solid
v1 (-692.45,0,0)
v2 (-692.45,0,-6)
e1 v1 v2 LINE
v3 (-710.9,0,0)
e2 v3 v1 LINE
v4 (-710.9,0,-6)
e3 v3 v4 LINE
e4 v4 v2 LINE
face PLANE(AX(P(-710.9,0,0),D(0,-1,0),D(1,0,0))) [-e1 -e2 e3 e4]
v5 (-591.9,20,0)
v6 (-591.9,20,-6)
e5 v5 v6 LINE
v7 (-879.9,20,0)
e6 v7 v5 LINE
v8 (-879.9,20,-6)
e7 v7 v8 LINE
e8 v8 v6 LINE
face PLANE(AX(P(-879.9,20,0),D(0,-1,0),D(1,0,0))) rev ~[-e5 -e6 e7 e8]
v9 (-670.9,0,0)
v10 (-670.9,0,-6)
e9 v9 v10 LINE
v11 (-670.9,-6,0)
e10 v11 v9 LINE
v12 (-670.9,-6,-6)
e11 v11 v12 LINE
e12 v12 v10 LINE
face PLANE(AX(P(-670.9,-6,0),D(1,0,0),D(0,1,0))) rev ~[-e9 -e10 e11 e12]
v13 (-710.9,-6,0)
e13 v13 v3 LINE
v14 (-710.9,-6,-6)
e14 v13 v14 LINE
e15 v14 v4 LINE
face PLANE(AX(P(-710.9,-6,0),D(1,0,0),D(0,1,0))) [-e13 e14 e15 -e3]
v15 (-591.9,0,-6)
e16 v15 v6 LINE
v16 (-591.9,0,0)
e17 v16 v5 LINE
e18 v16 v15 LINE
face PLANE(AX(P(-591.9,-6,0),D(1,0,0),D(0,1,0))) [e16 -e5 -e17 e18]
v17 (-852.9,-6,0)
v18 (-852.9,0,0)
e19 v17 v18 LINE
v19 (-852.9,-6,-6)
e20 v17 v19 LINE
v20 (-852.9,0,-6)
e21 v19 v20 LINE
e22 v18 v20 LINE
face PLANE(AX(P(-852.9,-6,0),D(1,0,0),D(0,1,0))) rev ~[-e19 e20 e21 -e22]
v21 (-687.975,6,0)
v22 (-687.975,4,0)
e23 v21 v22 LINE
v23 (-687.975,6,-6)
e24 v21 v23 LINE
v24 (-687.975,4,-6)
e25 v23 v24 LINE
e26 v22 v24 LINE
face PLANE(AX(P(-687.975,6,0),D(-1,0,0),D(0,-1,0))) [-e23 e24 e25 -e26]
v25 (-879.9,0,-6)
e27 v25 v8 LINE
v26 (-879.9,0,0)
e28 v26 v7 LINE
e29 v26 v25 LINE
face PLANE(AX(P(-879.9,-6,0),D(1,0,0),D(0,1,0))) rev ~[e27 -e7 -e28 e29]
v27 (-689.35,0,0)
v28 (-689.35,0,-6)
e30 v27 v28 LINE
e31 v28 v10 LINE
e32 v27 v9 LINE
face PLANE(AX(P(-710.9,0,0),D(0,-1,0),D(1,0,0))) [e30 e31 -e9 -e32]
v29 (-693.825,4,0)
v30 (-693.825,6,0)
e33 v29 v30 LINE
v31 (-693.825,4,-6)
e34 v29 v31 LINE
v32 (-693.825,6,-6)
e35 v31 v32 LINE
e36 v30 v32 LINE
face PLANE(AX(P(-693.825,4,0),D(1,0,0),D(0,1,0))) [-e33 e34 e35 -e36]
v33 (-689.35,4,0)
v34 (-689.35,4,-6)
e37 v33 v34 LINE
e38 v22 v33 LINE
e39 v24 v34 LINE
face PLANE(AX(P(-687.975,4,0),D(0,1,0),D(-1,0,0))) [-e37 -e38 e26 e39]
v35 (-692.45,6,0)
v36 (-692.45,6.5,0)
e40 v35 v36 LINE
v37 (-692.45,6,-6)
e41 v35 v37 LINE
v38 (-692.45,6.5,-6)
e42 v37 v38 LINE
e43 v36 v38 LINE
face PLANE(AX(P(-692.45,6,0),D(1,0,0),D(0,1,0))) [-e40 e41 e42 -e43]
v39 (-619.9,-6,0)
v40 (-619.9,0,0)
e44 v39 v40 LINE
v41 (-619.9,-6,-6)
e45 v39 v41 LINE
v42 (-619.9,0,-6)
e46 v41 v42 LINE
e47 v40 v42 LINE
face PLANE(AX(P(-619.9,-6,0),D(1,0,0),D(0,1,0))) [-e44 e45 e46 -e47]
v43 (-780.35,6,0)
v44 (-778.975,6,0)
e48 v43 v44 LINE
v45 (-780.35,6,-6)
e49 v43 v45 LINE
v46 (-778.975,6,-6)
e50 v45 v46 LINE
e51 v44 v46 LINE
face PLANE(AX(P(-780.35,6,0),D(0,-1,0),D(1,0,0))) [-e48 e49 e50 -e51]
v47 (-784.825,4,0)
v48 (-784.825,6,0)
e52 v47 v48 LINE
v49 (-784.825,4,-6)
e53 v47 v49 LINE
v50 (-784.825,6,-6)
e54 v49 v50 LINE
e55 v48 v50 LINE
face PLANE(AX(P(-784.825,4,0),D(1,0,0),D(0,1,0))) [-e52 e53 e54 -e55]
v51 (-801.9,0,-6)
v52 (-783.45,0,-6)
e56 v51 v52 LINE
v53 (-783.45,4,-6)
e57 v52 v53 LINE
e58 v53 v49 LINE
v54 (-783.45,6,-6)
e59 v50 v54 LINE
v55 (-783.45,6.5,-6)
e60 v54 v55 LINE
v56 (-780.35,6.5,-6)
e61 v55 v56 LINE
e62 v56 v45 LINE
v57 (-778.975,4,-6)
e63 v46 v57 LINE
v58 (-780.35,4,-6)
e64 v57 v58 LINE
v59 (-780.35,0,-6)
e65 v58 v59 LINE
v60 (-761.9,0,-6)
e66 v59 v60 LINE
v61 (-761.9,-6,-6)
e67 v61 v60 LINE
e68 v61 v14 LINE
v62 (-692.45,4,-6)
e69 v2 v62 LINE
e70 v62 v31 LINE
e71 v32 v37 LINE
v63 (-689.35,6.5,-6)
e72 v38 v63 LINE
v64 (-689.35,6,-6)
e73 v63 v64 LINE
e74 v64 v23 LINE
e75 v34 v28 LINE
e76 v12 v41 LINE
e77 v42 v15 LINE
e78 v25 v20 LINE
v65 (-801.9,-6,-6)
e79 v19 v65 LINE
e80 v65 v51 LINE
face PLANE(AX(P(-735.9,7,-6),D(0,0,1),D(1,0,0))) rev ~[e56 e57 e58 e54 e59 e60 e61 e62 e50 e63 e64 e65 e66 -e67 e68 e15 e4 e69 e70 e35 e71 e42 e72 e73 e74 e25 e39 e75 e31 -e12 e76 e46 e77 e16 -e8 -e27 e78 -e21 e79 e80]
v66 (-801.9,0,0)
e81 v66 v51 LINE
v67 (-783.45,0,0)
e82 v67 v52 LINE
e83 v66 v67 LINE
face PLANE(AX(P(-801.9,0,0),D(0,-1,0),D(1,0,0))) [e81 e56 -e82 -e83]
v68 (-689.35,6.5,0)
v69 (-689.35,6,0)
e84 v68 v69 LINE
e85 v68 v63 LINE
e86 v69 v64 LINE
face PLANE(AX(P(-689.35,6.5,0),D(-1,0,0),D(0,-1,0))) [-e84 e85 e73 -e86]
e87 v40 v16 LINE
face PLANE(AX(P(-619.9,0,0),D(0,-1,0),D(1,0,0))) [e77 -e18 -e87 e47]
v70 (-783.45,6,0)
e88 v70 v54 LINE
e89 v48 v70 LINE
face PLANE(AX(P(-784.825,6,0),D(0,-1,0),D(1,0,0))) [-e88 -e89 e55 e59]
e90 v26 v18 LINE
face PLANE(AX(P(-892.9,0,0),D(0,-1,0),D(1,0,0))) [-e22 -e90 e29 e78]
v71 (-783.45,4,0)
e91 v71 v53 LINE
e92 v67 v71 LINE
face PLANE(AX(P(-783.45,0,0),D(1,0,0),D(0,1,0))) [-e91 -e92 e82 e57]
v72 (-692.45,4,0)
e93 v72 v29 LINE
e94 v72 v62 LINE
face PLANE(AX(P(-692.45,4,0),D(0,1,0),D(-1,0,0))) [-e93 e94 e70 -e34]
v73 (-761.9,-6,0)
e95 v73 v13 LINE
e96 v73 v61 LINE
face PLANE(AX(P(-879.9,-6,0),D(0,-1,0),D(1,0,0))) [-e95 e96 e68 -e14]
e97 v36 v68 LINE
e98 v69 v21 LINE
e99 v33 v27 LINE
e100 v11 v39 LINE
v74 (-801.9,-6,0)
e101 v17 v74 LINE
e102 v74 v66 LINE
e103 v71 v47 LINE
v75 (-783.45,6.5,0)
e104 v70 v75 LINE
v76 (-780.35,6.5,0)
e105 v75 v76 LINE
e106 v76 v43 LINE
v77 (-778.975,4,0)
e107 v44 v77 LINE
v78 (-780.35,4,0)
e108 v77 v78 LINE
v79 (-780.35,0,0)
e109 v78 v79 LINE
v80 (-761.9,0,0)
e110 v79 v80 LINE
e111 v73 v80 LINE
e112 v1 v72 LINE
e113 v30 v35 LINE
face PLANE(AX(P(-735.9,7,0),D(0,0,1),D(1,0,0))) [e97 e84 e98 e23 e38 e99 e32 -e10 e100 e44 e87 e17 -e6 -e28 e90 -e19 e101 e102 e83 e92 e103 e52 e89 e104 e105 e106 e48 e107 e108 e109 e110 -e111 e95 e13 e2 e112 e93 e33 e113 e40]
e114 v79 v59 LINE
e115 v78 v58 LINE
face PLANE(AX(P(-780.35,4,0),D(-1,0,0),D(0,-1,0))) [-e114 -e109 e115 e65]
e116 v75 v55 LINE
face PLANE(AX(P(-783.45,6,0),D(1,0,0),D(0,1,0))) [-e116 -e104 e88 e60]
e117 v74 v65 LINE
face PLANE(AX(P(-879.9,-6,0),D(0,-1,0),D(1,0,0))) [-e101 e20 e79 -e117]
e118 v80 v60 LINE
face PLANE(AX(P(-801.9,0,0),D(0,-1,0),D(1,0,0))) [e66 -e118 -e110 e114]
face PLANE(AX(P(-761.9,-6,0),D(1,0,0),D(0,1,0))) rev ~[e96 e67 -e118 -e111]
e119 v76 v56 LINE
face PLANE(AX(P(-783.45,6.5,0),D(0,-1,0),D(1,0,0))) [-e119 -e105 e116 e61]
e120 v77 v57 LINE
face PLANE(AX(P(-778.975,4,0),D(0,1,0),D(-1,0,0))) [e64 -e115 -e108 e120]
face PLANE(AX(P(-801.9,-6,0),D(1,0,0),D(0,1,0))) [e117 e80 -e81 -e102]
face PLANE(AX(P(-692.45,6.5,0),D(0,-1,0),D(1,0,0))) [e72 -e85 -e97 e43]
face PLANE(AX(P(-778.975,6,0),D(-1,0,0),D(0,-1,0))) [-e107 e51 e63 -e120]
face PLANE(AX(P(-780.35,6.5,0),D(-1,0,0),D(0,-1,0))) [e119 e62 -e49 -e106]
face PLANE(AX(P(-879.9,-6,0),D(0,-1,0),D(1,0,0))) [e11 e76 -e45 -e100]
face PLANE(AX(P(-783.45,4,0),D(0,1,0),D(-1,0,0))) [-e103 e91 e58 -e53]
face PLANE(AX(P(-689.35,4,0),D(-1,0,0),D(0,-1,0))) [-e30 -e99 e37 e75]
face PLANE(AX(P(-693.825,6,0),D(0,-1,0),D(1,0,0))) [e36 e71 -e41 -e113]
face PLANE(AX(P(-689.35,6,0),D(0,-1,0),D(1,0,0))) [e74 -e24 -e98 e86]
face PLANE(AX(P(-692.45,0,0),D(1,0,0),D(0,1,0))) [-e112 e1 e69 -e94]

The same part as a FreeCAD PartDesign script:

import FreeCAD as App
import Part
import Sketcher

V = App.Vector
Q = App.Units.Quantity


def add_polygon(sketch, points):
    """Adds a closed chain of lines whose ends are joined by coincident constraints."""
    first, n = sketch.GeometryCount, len(points)
    for a, b in zip(points, points[1:] + points[:1]):
        sketch.addGeometry(Part.LineSegment(App.Vector(*a, 0), App.Vector(*b, 0)), False)
    for i in range(n):
        sketch.addConstraint(Sketcher.Constraint("Coincident", first + i, 2, first + (i + 1) % n, 1))

doc = App.newDocument("Part")
body = doc.addObject("PartDesign::Body", "Body")

# Sketch on XY plane
sketch1 = doc.addObject("Sketcher::SketchObject", "Sketch")
body.addObject(sketch1)
sketch1.AttachmentSupport = (doc.XY_Plane, [""])
sketch1.MapMode = "FlatFace"
add_polygon(sketch1, [(-880, 20), (-880, -6), (-592, -6), (-592, 20)])  # lines 0-3
sketch1.addConstraint([
    Sketcher.Constraint("Vertical", 0),
    Sketcher.Constraint("Horizontal", 1),
    Sketcher.Constraint("Vertical", 2),
    Sketcher.Constraint("Horizontal", 3),
    Sketcher.Constraint("DistanceX", 1, 1, 1, 2, Q("288 mm")),
    Sketcher.Constraint("DistanceY", 0, 2, 0, 1, Q("26 mm")),
    Sketcher.Constraint("DistanceY", 0, 2, -1, 1, Q("6 mm")),
    Sketcher.Constraint("DistanceX", 0, 2, -1, 1, Q("879.9 mm")),
])
pad1 = doc.addObject("PartDesign::Pad", "Pad")
body.addObject(pad1)
pad1.Profile = sketch1
pad1.Length = 6
pad1.Reversed = True

# Sketch on XY plane
sketch2 = doc.addObject("Sketcher::SketchObject", "Sketch001")
body.addObject(sketch2)
sketch2.AttachmentSupport = (doc.XY_Plane, [""])
sketch2.MapMode = "FlatFace"
add_polygon(sketch2, [(-893, 0), (-893, -6), (-853, -6), (-853, 0)])  # lines 0-3
sketch2.addConstraint([
    Sketcher.Constraint("Vertical", 0),
    Sketcher.Constraint("Horizontal", 1),
    Sketcher.Constraint("Vertical", 2),
    Sketcher.Constraint("Horizontal", 3),
    Sketcher.Constraint("PointOnObject", 2, 2, -1),
    Sketcher.Constraint("DistanceX", 1, 1, 1, 2, Q("40 mm")),
    Sketcher.Constraint("DistanceY", 0, 2, 0, 1, Q("6 mm")),
    Sketcher.Constraint("DistanceX", 0, 2, -1, 1, Q("892.9 mm")),
])
pocket1 = doc.addObject("PartDesign::Pocket", "Pocket")
body.addObject(pocket1)
pocket1.Profile = sketch2
pocket1.Length = 6
doc.recompute()

linearpattern = doc.addObject("PartDesign::LinearPattern", "LinearPattern")
body.addObject(linearpattern)
linearpattern.Originals = [pocket1]
linearpattern.Direction = (doc.X_Axis, [""])
linearpattern.Mode = "offset"
linearpattern.Offset = 91
linearpattern.Occurrences = 4
body.Tip = linearpattern

# Sketch on XY plane
sketch3 = doc.addObject("Sketcher::SketchObject", "Sketch002")
body.addObject(sketch3)
sketch3.AttachmentSupport = (doc.XY_Plane, [""])
sketch3.MapMode = "FlatFace"
add_polygon(sketch3, [(-783.5, 0), (-780.4, 0), (-780.4, 4), (-779, 4), (-779, 6), (-780.4, 6), (-780.4, 6.5), (-783.5, 6.5), (-783.5, 6), (-784.8, 6), (-784.8, 4), (-783.5, 4)])  # lines 0-11
sketch3.addConstraint([
    Sketcher.Constraint("Horizontal", 0),
    Sketcher.Constraint("Vertical", 1),
    Sketcher.Constraint("Horizontal", 2),
    Sketcher.Constraint("Vertical", 3),
    Sketcher.Constraint("Horizontal", 4),
    Sketcher.Constraint("Vertical", 5),
    Sketcher.Constraint("Horizontal", 6),
    Sketcher.Constraint("Vertical", 7),
    Sketcher.Constraint("Horizontal", 8),
    Sketcher.Constraint("Vertical", 9),
    Sketcher.Constraint("Horizontal", 10),
    Sketcher.Constraint("Vertical", 11),
    Sketcher.Constraint("PointOnObject", 0, 2, -1),
    Sketcher.Constraint("Horizontal", 4, 2, 7, 2),
    Sketcher.Constraint("Horizontal", 2, 2, 9, 2),
    Sketcher.Constraint("Vertical", 1, 2, 4, 2),
    Sketcher.Constraint("Vertical", 7, 2, 10, 2),
    Sketcher.Constraint("Equal", 4, 8),
    Sketcher.Constraint("DistanceY", 1, 1, 1, 2, Q("4 mm")),
    Sketcher.Constraint("DistanceY", 3, 1, 3, 2, Q("2 mm")),
    Sketcher.Constraint("DistanceX", 0, 1, 0, 2, Q("3.1 mm")),
    Sketcher.Constraint("DistanceY", 5, 1, 5, 2, Q("0.5 mm")),
    Sketcher.Constraint("DistanceX", 2, 1, 2, 2, Q("1.375 mm")),
    Sketcher.Constraint("DistanceX", 0, 2, -1, 1, Q("780.35 mm")),
])
pocket2 = doc.addObject("PartDesign::Pocket", "Pocket001")
body.addObject(pocket2)
pocket2.Profile = sketch3
pocket2.Length = 6
doc.recompute()

linearpattern2 = doc.addObject("PartDesign::LinearPattern", "LinearPattern001")
body.addObject(linearpattern2)
linearpattern2.Originals = [pocket2]
linearpattern2.Direction = (doc.X_Axis, [""])
linearpattern2.Mode = "offset"
linearpattern2.Offset = 91
linearpattern2.Occurrences = 2
body.Tip = linearpattern2

doc.recompute()
